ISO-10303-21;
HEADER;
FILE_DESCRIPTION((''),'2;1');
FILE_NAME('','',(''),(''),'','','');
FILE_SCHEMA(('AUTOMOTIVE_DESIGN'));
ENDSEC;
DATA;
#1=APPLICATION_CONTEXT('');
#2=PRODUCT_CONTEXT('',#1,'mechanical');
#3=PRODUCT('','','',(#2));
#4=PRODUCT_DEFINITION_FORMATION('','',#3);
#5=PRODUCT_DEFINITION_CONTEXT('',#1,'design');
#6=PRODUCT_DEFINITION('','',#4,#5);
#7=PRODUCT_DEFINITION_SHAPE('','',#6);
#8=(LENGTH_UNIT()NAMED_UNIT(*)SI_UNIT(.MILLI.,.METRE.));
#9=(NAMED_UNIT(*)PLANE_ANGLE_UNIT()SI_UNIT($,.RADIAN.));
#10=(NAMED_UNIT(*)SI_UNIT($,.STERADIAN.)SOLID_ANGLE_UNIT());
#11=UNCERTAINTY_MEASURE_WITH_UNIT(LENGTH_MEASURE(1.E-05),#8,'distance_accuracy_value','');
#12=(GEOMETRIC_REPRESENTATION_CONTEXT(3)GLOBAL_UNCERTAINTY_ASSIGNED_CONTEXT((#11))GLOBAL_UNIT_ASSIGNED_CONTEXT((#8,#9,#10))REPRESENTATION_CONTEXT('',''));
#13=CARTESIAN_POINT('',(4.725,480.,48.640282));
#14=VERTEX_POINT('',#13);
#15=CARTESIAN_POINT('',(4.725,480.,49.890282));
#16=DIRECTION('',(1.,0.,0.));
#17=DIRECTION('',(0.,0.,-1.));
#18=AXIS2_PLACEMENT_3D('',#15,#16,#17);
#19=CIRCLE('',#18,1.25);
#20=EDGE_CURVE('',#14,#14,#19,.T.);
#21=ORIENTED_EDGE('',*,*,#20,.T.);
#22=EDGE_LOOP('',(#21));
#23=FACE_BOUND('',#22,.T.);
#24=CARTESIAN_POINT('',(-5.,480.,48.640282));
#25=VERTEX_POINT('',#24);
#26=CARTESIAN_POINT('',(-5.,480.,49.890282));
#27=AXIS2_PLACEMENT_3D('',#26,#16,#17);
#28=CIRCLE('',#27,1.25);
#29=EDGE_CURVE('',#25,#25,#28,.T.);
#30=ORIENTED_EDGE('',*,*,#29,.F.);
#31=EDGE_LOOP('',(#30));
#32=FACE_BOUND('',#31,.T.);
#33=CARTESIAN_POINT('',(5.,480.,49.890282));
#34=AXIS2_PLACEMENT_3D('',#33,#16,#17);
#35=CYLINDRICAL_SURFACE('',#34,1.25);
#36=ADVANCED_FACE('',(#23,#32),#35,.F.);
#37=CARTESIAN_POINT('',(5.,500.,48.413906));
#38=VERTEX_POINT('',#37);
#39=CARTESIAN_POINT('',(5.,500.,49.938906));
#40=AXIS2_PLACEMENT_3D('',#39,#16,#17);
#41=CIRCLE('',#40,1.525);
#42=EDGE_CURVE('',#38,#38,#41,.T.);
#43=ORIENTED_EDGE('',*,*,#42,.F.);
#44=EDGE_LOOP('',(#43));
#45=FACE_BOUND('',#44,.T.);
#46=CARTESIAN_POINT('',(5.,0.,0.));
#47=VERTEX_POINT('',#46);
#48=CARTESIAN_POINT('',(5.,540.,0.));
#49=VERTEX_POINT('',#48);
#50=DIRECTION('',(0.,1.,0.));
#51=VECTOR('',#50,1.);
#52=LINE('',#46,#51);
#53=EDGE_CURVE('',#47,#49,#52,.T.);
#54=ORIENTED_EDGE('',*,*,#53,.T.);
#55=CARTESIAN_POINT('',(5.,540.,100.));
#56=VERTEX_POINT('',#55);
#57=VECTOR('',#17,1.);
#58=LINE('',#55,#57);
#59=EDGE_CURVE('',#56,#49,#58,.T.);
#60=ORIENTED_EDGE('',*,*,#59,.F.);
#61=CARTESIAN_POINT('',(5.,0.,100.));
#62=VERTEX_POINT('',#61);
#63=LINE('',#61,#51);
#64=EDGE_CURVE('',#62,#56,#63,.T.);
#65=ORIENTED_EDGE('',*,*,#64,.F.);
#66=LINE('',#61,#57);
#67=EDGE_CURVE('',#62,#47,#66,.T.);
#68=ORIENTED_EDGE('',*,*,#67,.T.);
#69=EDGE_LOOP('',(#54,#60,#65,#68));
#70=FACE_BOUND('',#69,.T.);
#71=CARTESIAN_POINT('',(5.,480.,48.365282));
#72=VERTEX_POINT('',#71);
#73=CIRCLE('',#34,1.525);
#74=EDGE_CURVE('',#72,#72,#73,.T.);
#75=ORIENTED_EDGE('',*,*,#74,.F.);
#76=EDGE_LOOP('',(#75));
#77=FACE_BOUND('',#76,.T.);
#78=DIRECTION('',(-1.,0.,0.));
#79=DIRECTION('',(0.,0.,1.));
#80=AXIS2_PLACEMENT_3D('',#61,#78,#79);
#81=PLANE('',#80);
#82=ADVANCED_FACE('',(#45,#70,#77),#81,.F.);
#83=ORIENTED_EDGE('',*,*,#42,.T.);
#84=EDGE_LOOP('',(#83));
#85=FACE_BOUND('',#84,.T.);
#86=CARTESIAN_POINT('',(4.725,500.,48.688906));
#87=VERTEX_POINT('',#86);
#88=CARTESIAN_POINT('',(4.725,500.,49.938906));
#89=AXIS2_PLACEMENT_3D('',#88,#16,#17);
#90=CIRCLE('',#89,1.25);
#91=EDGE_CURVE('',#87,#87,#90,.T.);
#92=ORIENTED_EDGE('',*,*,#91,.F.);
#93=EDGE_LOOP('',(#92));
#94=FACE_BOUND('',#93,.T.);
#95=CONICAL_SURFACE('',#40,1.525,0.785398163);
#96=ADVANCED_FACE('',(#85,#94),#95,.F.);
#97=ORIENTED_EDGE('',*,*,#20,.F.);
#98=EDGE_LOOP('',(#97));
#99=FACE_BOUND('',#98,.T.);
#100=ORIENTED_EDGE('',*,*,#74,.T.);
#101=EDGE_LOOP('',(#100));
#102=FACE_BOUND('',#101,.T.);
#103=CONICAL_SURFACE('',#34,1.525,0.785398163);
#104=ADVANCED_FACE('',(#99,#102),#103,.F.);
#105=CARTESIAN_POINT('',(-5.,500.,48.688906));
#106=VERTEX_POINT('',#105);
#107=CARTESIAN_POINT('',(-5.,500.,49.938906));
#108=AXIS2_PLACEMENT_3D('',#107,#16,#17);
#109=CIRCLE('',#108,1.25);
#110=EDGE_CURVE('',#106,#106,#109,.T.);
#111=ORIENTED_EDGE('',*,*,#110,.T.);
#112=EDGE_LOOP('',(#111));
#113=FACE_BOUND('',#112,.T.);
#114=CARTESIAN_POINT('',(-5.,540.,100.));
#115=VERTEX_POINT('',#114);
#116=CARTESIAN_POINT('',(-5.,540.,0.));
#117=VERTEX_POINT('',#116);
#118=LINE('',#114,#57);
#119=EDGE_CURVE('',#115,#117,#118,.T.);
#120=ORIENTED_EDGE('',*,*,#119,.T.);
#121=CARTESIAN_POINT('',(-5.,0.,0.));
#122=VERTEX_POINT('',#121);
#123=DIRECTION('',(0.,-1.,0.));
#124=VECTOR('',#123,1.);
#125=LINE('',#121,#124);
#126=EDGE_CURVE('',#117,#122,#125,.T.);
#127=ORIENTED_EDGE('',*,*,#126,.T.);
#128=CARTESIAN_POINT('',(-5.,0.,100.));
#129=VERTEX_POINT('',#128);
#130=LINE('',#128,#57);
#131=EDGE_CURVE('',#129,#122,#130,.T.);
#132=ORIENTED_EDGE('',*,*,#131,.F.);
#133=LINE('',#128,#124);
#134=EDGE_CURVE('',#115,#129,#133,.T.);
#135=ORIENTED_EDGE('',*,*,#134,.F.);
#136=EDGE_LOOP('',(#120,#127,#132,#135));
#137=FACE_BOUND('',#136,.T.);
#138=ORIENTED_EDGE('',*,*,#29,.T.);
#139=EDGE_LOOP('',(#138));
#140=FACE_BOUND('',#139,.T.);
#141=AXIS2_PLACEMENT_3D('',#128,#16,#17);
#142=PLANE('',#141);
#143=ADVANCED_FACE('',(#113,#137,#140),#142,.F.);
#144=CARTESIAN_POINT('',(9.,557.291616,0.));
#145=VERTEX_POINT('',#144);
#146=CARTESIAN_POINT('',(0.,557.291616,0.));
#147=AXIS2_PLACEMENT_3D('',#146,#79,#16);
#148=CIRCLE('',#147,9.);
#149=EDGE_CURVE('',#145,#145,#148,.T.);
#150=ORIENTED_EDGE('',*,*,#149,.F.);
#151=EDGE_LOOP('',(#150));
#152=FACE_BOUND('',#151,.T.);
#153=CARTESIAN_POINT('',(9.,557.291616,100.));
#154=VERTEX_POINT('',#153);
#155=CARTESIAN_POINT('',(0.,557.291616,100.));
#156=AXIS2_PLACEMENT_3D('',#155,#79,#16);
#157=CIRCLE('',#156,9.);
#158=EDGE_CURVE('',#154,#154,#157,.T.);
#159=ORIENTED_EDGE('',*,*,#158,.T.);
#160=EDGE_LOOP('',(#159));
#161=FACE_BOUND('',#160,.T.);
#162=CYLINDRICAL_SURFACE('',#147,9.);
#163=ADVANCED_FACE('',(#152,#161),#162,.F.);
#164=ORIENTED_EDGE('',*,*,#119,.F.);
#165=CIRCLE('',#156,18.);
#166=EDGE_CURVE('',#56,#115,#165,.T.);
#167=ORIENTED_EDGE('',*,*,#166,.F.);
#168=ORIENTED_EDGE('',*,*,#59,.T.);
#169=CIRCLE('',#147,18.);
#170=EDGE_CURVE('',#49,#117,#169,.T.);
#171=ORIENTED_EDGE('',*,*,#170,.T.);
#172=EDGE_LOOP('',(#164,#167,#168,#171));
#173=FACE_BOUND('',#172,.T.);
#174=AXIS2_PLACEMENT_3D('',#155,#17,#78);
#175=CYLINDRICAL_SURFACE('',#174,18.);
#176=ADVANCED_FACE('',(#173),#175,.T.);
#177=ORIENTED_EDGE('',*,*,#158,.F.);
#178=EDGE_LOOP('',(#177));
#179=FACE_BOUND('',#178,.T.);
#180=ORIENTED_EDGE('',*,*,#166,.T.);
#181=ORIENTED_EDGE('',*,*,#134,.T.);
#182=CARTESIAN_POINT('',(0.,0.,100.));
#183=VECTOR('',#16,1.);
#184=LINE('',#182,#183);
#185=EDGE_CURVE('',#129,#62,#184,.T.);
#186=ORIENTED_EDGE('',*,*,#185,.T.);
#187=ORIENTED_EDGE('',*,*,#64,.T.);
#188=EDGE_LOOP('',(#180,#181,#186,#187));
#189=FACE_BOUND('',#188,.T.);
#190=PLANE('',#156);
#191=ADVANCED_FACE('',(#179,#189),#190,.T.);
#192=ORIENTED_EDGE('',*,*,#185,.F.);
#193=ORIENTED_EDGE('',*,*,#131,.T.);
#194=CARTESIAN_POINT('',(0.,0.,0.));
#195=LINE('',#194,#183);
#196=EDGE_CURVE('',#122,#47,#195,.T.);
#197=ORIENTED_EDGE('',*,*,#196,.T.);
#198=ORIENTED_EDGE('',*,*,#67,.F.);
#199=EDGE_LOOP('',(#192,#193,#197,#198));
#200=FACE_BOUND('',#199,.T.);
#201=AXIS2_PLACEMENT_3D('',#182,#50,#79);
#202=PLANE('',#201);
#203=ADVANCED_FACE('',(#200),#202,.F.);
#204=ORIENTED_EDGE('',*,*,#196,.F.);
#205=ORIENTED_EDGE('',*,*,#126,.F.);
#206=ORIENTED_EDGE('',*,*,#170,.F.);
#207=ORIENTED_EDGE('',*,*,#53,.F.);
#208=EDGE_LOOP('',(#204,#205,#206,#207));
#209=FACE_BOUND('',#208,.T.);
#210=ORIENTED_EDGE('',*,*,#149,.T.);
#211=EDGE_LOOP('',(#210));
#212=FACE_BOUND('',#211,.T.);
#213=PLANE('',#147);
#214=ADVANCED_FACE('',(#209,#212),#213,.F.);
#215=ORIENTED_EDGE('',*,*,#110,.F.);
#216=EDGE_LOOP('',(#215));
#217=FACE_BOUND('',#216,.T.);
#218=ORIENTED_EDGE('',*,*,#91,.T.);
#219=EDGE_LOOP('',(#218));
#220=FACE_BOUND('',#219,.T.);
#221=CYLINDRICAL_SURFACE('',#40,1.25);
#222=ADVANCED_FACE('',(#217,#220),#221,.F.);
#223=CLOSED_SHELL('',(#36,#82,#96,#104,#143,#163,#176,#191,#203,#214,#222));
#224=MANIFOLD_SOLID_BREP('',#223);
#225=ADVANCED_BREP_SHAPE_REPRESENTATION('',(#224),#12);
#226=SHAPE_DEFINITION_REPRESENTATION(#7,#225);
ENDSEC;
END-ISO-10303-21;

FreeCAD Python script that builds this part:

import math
import FreeCAD as App
import Part
import Sketcher
from FreeCAD import Vector
Q = App.Units.Quantity

doc = App.newDocument("Part")
body = doc.addObject("PartDesign::Body", "Body")

# Sketch on XY plane
sketch1 = body.newObject("Sketcher::SketchObject", "Sketch")
sketch1.AttachmentSupport = (doc.getObject("XY_Plane"), [""])
sketch1.MapMode = "FlatFace"
sketch1.addGeometry(Part.LineSegment(Vector(5, 0, 0), Vector(5, 540, 0)), False)
sketch1.addGeometry(Part.ArcOfCircle(Part.Circle(Vector(0, 557, 0), Vector(0, 0, 1), 18), math.radians(-74), math.radians(254)), False)
sketch1.addGeometry(Part.LineSegment(Vector(-5, 540, 0), Vector(-5, 0, 0)), False)
sketch1.addGeometry(Part.LineSegment(Vector(-5, 0, 0), Vector(5, 0, 0)), False)
sketch1.addConstraint(Sketcher.Constraint("Coincident", 0, 2, 1, 1))
sketch1.addConstraint(Sketcher.Constraint("Coincident", 1, 2, 2, 1))
sketch1.addConstraint(Sketcher.Constraint("Coincident", 2, 2, 3, 1))
sketch1.addConstraint(Sketcher.Constraint("Coincident", 3, 2, 0, 1))
sketch1.addConstraint(Sketcher.Constraint("Vertical", 0))
sketch1.addConstraint(Sketcher.Constraint("Vertical", 2))
sketch1.addConstraint(Sketcher.Constraint("Horizontal", 3))
sketch1.addConstraint(Sketcher.Constraint("Symmetric", 2, 2, 3, 2, -1, 1))
sketch1.addConstraint(Sketcher.Constraint("PointOnObject", 1, 3, -2))
sketch1.addConstraint(Sketcher.Constraint("Radius", 1, Q("18 mm")))
sketch1.addConstraint(Sketcher.Constraint("DistanceX", 3, 1, 3, 2, Q("10 mm")))
sketch1.addConstraint(Sketcher.Constraint("DistanceY", 0, 1, 0, 2, Q("540 mm")))
pad1 = body.newObject("PartDesign::Pad", "Pad")
pad1.Profile = sketch1
pad1.Length = 100

# Sketch on XY plane
sketch2 = body.newObject("Sketcher::SketchObject", "Sketch001")
sketch2.AttachmentSupport = (doc.getObject("XY_Plane"), [""])
sketch2.MapMode = "FlatFace"
sketch2.AttachmentOffset = App.Placement(Vector(0, 0, 100), App.Rotation())
sketch2.addGeometry(Part.Circle(Vector(0, 557, 0), Vector(0, 0, 1), 9), False)
sketch2.addConstraint(Sketcher.Constraint("PointOnObject", 0, 3, -2))
sketch2.addConstraint(Sketcher.Constraint("Diameter", 0, Q("18 mm")))
sketch2.addConstraint(Sketcher.Constraint("DistanceY", -1, 1, 0, 3, Q("557.291616 mm")))
pocket1 = body.newObject("PartDesign::Pocket", "Pocket")
pocket1.Profile = sketch2
pocket1.Length = 100

# Sketch on YZ plane
sketch3 = body.newObject("Sketcher::SketchObject", "Sketch002")
sketch3.AttachmentSupport = (doc.getObject("YZ_Plane"), [""])
sketch3.MapMode = "FlatFace"
sketch3.AttachmentOffset = App.Placement(Vector(0, 0, 5), App.Rotation())
sketch3.addGeometry(Part.Circle(Vector(500, 49.9, 0), Vector(0, 0, 1), 1.2), False)
sketch3.addConstraint(Sketcher.Constraint("Diameter", 0, Q("2.5 mm")))
sketch3.addConstraint(Sketcher.Constraint("DistanceX", -1, 1, 0, 3, Q("500 mm")))
sketch3.addConstraint(Sketcher.Constraint("DistanceY", -1, 1, 0, 3, Q("49.938906 mm")))
doc.recompute()
hole = body.newObject("PartDesign::Hole", "Hole")
hole.Profile = sketch3
hole.ThreadType = "None"
hole.Diameter = 2.5
hole.DepthType = "ThroughAll"
hole.HoleCutType = "Countersink"
hole.HoleCutDiameter = 3.05
hole.HoleCutCountersinkAngle = 90

# Sketch on YZ plane
sketch4 = body.newObject("Sketcher::SketchObject", "Sketch003")
sketch4.AttachmentSupport = (doc.getObject("YZ_Plane"), [""])
sketch4.MapMode = "FlatFace"
sketch4.AttachmentOffset = App.Placement(Vector(0, 0, 5), App.Rotation())
sketch4.addGeometry(Part.Circle(Vector(480, 49.9, 0), Vector(0, 0, 1), 1.2), False)
sketch4.addConstraint(Sketcher.Constraint("Diameter", 0, Q("2.5 mm")))
sketch4.addConstraint(Sketcher.Constraint("DistanceX", -1, 1, 0, 3, Q("480 mm")))
sketch4.addConstraint(Sketcher.Constraint("DistanceY", -1, 1, 0, 3, Q("49.890282 mm")))
doc.recompute()
hole2 = body.newObject("PartDesign::Hole", "Hole001")
hole2.Profile = sketch4
hole2.ThreadType = "None"
hole2.Diameter = 2.5
hole2.DepthType = "ThroughAll"
hole2.HoleCutType = "Countersink"
hole2.HoleCutDiameter = 3.05
hole2.HoleCutCountersinkAngle = 90

doc.recompute()
